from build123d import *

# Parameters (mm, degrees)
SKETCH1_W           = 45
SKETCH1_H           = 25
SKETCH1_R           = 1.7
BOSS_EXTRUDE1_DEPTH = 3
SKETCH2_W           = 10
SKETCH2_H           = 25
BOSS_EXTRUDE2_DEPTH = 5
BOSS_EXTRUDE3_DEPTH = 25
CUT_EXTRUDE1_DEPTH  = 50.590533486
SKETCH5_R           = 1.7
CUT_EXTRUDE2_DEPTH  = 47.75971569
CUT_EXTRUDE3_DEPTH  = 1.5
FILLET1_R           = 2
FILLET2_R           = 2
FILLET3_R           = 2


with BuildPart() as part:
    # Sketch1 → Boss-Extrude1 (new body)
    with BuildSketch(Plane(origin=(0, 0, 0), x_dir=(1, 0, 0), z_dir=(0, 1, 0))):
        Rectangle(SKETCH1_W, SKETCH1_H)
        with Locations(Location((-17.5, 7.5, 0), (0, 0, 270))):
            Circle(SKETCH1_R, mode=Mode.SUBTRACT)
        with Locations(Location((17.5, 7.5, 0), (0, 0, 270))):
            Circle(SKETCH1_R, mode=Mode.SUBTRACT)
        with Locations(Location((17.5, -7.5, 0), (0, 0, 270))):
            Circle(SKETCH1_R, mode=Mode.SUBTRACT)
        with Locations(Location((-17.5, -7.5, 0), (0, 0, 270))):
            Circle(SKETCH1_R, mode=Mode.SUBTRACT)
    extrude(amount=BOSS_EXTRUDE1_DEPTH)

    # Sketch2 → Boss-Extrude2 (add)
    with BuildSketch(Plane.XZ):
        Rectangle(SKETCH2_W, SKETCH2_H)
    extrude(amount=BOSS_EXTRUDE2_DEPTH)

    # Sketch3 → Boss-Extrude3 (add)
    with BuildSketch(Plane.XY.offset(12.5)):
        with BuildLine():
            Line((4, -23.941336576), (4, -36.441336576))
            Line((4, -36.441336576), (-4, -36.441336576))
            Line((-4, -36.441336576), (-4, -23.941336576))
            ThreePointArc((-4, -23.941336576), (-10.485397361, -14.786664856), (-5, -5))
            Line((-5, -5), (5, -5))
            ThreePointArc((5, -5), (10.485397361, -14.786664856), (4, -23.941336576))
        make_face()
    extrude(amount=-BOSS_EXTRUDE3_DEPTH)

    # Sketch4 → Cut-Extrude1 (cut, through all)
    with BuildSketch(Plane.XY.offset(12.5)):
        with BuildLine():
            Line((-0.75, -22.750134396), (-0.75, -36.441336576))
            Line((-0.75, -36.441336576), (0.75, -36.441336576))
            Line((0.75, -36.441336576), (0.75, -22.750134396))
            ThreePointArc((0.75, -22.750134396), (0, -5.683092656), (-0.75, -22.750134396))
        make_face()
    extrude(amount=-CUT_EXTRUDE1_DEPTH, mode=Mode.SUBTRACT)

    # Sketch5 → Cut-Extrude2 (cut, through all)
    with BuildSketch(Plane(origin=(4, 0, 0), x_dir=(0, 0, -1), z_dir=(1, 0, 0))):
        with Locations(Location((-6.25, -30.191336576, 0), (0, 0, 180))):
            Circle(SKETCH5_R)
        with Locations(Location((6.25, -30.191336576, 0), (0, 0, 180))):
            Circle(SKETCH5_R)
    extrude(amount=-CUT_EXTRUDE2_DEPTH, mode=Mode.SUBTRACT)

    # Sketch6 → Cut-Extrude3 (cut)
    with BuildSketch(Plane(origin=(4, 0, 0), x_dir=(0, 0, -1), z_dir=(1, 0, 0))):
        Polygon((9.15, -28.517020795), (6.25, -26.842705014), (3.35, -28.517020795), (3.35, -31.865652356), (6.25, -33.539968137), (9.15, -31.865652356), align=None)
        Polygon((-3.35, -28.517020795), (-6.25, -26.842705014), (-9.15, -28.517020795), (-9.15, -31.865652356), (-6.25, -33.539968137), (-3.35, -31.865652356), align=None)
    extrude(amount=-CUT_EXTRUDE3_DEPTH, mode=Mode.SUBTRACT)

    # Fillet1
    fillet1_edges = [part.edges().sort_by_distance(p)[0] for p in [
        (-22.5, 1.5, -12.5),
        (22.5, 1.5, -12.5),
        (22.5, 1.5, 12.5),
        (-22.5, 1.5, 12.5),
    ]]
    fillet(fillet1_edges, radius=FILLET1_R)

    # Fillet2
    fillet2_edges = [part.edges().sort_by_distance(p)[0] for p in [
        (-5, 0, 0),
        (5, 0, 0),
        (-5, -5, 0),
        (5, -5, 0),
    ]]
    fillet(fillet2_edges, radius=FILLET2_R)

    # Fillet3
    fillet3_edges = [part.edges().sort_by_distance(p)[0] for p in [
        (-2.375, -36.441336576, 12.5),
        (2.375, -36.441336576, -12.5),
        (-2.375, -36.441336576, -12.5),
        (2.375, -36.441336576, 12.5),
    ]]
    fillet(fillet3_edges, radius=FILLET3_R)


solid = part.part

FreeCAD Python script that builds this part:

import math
import FreeCAD as App
import Part
import Sketcher
Q = App.Units.Quantity


def edges_at(feature, points):
    """Names of the edges that pass closest to the given points."""
    edges = feature.Shape.Edges
    near = lambda p: min(range(len(edges)), key=lambda i: edges[i].distToShape(Part.Vertex(*p))[0])
    return sorted({f"Edge{near(p) + 1}" for p in points})


def add_polygon(sketch, points):
    """Adds a closed chain of lines whose ends are joined by coincident constraints."""
    first, n = sketch.GeometryCount, len(points)
    for a, b in zip(points, points[1:] + points[:1]):
        sketch.addGeometry(Part.LineSegment(App.Vector(*a, 0), App.Vector(*b, 0)), False)
    for i in range(n):
        sketch.addConstraint(Sketcher.Constraint("Coincident", first + i, 2, first + (i + 1) % n, 1))

doc = App.newDocument("Part")
body = doc.addObject("PartDesign::Body", "Body")

# Sketch on XZ plane
sketch1 = body.newObject("Sketcher::SketchObject", "Sketch")
sketch1.AttachmentSupport = (doc.getObject("XZ_Plane"), [""])
sketch1.MapMode = "FlatFace"
add_polygon(sketch1, [(-22.5, -12.5), (-22.5, 12.5), (22.5, 12.5), (22.5, -12.5)])  # lines 0-3
sketch1.addGeometry(Part.Circle(App.Vector(-17.5, 7.5, 0), App.Vector(0, 0, 1), 1.7), False)  # 4
sketch1.addGeometry(Part.Circle(App.Vector(17.5, 7.5, 0), App.Vector(0, 0, 1), 1.7), False)  # 5
sketch1.addGeometry(Part.Circle(App.Vector(-17.5, -7.5, 0), App.Vector(0, 0, 1), 1.7), False)  # 6
sketch1.addGeometry(Part.Circle(App.Vector(17.5, -7.5, 0), App.Vector(0, 0, 1), 1.7), False)  # 7
sketch1.addConstraint(Sketcher.Constraint("Vertical", 0))
sketch1.addConstraint(Sketcher.Constraint("Horizontal", 1))
sketch1.addConstraint(Sketcher.Constraint("Vertical", 2))
sketch1.addConstraint(Sketcher.Constraint("Horizontal", 3))
sketch1.addConstraint(Sketcher.Constraint("Equal", 4, 5))
sketch1.addConstraint(Sketcher.Constraint("Equal", 5, 6))
sketch1.addConstraint(Sketcher.Constraint("Equal", 6, 7))
sketch1.addConstraint(Sketcher.Constraint("Symmetric", 5, 3, 6, 3, -1, 1))
sketch1.addConstraint(Sketcher.Constraint("Symmetric", 4, 3, 7, 3, -1, 1))
sketch1.addConstraint(Sketcher.Constraint("Symmetric", 0, 2, 2, 2, -1, 1))
sketch1.addConstraint(Sketcher.Constraint("Symmetric", 4, 3, 5, 3, -2))
sketch1.addConstraint(Sketcher.Constraint("Diameter", 4, Q("3.4 mm")))
sketch1.addConstraint(Sketcher.Constraint("DistanceX", 1, 1, 1, 2, Q("45 mm")))
sketch1.addConstraint(Sketcher.Constraint("DistanceY", 0, 1, 0, 2, Q("25 mm")))
sketch1.addConstraint(Sketcher.Constraint("DistanceX", 4, 3, 5, 3, Q("35 mm")))
sketch1.addConstraint(Sketcher.Constraint("DistanceY", 6, 3, 4, 3, Q("15 mm")))
pad1 = body.newObject("PartDesign::Pad", "Pad")
pad1.Profile = sketch1
pad1.Length = 3
pad1.Reversed = True

# Sketch on XZ plane
sketch2 = body.newObject("Sketcher::SketchObject", "Sketch001")
sketch2.AttachmentSupport = (doc.getObject("XZ_Plane"), [""])
sketch2.MapMode = "FlatFace"
add_polygon(sketch2, [(-5, 12), (-5, -12), (5, -12), (5, 12)])  # lines 0-3
sketch2.addConstraint(Sketcher.Constraint("Vertical", 0))
sketch2.addConstraint(Sketcher.Constraint("Horizontal", 1))
sketch2.addConstraint(Sketcher.Constraint("Vertical", 2))
sketch2.addConstraint(Sketcher.Constraint("Horizontal", 3))
sketch2.addConstraint(Sketcher.Constraint("Symmetric", 0, 2, 2, 2, -1, 1))
sketch2.addConstraint(Sketcher.Constraint("DistanceX", 1, 1, 1, 2, Q("10 mm")))
sketch2.addConstraint(Sketcher.Constraint("DistanceY", 0, 2, 0, 1, Q("25 mm")))
pad2 = body.newObject("PartDesign::Pad", "Pad001")
pad2.Profile = sketch2
pad2.Length = 5

# Sketch on XY plane
sketch3 = body.newObject("Sketcher::SketchObject", "Sketch002")
sketch3.AttachmentSupport = (doc.getObject("XY_Plane"), [""])
sketch3.MapMode = "FlatFace"
sketch3.AttachmentOffset = App.Placement(App.Vector(0, 0, 12.5), App.Rotation())
sketch3.addGeometry(Part.LineSegment(App.Vector(4, -36, 0), App.Vector(4, -24, 0)), False)
sketch3.addGeometry(Part.ArcOfCircle(Part.Circle(App.Vector(0, -14, 0), App.Vector(0, 0, 1), 10), math.radians(-68), math.radians(62)), False)
sketch3.addGeometry(Part.LineSegment(App.Vector(5, -5, 0), App.Vector(-5, -5, 0)), False)
sketch3.addGeometry(Part.ArcOfCircle(Part.Circle(App.Vector(0, -14, 0), App.Vector(0, 0, 1), 10), math.radians(118), math.radians(248)), False)
sketch3.addGeometry(Part.LineSegment(App.Vector(-4, -24, 0), App.Vector(-4, -36, 0)), False)
sketch3.addGeometry(Part.LineSegment(App.Vector(-4, -36, 0), App.Vector(4, -36, 0)), False)
sketch3.addConstraint(Sketcher.Constraint("Coincident", 0, 2, 1, 1))
sketch3.addConstraint(Sketcher.Constraint("Coincident", 1, 2, 2, 1))
sketch3.addConstraint(Sketcher.Constraint("Coincident", 2, 2, 3, 1))
sketch3.addConstraint(Sketcher.Constraint("Coincident", 3, 2, 4, 1))
sketch3.addConstraint(Sketcher.Constraint("Coincident", 4, 2, 5, 1))
sketch3.addConstraint(Sketcher.Constraint("Coincident", 5, 2, 0, 1))
sketch3.addConstraint(Sketcher.Constraint("Vertical", 0))
sketch3.addConstraint(Sketcher.Constraint("Horizontal", 2))
sketch3.addConstraint(Sketcher.Constraint("Vertical", 4))
sketch3.addConstraint(Sketcher.Constraint("Horizontal", 5))
sketch3.addConstraint(Sketcher.Constraint("Coincident", 3, 3, 1, 3))
sketch3.addConstraint(Sketcher.Constraint("Equal", 1, 3))
sketch3.addConstraint(Sketcher.Constraint("Symmetric", 0, 2, 3, 2, -2))
sketch3.addConstraint(Sketcher.Constraint("Radius", 1, Q("10.5 mm")))
sketch3.addConstraint(Sketcher.Constraint("DistanceX", 2, 2, 2, 1, Q("10 mm")))
sketch3.addConstraint(Sketcher.Constraint("DistanceX", 5, 1, 5, 2, Q("8 mm")))
sketch3.addConstraint(Sketcher.Constraint("DistanceY", 0, 1, 0, 2, Q("12.5 mm")))
sketch3.addConstraint(Sketcher.Constraint("DistanceY", 1, 2, -1, 1, Q("5 mm")))
pad3 = body.newObject("PartDesign::Pad", "Pad002")
pad3.Profile = sketch3
pad3.Length = 25
pad3.Reversed = True

# Sketch on XY plane
sketch4 = body.newObject("Sketcher::SketchObject", "Sketch003")
sketch4.AttachmentSupport = (doc.getObject("XY_Plane"), [""])
sketch4.MapMode = "FlatFace"
sketch4.AttachmentOffset = App.Placement(App.Vector(0, 0, 12.5), App.Rotation())
sketch4.addGeometry(Part.LineSegment(App.Vector(-0.8, -22.8, 0), App.Vector(-0.8, -36.4, 0)), False)
sketch4.addGeometry(Part.LineSegment(App.Vector(-0.8, -36.4, 0), App.Vector(0.8, -36.4, 0)), False)
sketch4.addGeometry(Part.LineSegment(App.Vector(0.8, -36.4, 0), App.Vector(0.8, -22.8, 0)), False)
sketch4.addGeometry(Part.ArcOfCircle(Part.Circle(App.Vector(0, -14.2, 0), App.Vector(0, 0, 1), 8.6), math.radians(-85), math.radians(265)), False)
sketch4.addConstraint(Sketcher.Constraint("Coincident", 0, 2, 1, 1))
sketch4.addConstraint(Sketcher.Constraint("Coincident", 1, 2, 2, 1))
sketch4.addConstraint(Sketcher.Constraint("Coincident", 2, 2, 3, 1))
sketch4.addConstraint(Sketcher.Constraint("Coincident", 3, 2, 0, 1))
sketch4.addConstraint(Sketcher.Constraint("Vertical", 0))
sketch4.addConstraint(Sketcher.Constraint("Horizontal", 1))
sketch4.addConstraint(Sketcher.Constraint("Vertical", 2))
sketch4.addConstraint(Sketcher.Constraint("Symmetric", 2, 2, 3, 2, -2))
sketch4.addConstraint(Sketcher.Constraint("Radius", 3, Q("8.55 mm")))
sketch4.addConstraint(Sketcher.Constraint("DistanceX", 1, 1, 1, 2, Q("1.5 mm")))
sketch4.addConstraint(Sketcher.Constraint("DistanceY", 0, 2, 0, 1, Q("13.691202 mm")))
sketch4.addConstraint(Sketcher.Constraint("DistanceY", 3, 3, -1, 1, Q("14.233093 mm")))
pocket1 = body.newObject("PartDesign::Pocket", "Pocket")
pocket1.Profile = sketch4
pocket1.Type = "ThroughAll"

# Sketch on YZ plane
sketch5 = body.newObject("Sketcher::SketchObject", "Sketch004")
sketch5.AttachmentSupport = (doc.getObject("YZ_Plane"), [""])
sketch5.MapMode = "FlatFace"
sketch5.AttachmentOffset = App.Placement(App.Vector(0, 0, 4), App.Rotation())
sketch5.addGeometry(Part.Circle(App.Vector(-30.2, 6.2, 0), App.Vector(0, 0, 1), 1.7), False)
sketch5.addGeometry(Part.Circle(App.Vector(-30.2, -6.2, 0), App.Vector(0, 0, 1), 1.7), False)
sketch5.addConstraint(Sketcher.Constraint("Equal", 0, 1))
sketch5.addConstraint(Sketcher.Constraint("Symmetric", 0, 3, 1, 3, -1))
sketch5.addConstraint(Sketcher.Constraint("Diameter", 0, Q("3.4 mm")))
sketch5.addConstraint(Sketcher.Constraint("DistanceY", 1, 3, 0, 3, Q("12.5 mm")))
sketch5.addConstraint(Sketcher.Constraint("DistanceX", 0, 3, -1, 1, Q("30.191337 mm")))
pocket2 = body.newObject("PartDesign::Pocket", "Pocket001")
pocket2.Profile = sketch5
pocket2.Type = "ThroughAll"

# Sketch on YZ plane
sketch6 = body.newObject("Sketcher::SketchObject", "Sketch005")
sketch6.AttachmentSupport = (doc.getObject("YZ_Plane"), [""])
sketch6.MapMode = "FlatFace"
sketch6.AttachmentOffset = App.Placement(App.Vector(0, 0, 4), App.Rotation())
add_polygon(sketch6, [(-28.5, -9.2), (-26.8, -6.2), (-28.5, -3.4), (-31.9, -3.4), (-33.5, -6.2), (-31.9, -9.2)])  # lines 0-5
add_polygon(sketch6, [(-28.5, 3.4), (-26.8, 6.2), (-28.5, 9.2), (-31.9, 9.2), (-33.5, 6.2), (-31.9, 3.4)])  # lines 6-11
sketch6.addConstraint(Sketcher.Constraint("Horizontal", 2))
sketch6.addConstraint(Sketcher.Constraint("Horizontal", 5))
sketch6.addConstraint(Sketcher.Constraint("Horizontal", 8))
sketch6.addConstraint(Sketcher.Constraint("Horizontal", 11))
sketch6.addConstraint(Sketcher.Constraint("Symmetric", 0, 2, 6, 2, -1))
sketch6.addConstraint(Sketcher.Constraint("Symmetric", 5, 2, 7, 2, -1))
sketch6.addConstraint(Sketcher.Constraint("Symmetric", 3, 2, 9, 2, -1))
sketch6.addConstraint(Sketcher.Constraint("Symmetric", 2, 2, 10, 2, -1))
sketch6.addConstraint(Sketcher.Constraint("Parallel", 0, 3))
sketch6.addConstraint(Sketcher.Constraint("Parallel", 1, 4))
sketch6.addConstraint(Sketcher.Constraint("Parallel", 3, 6))
sketch6.addConstraint(Sketcher.Constraint("Parallel", 4, 7))
sketch6.addConstraint(Sketcher.Constraint("Parallel", 6, 9))
sketch6.addConstraint(Sketcher.Constraint("Horizontal", 0, 2, 3, 2))
sketch6.addConstraint(Sketcher.Constraint("Vertical", 2, 2, 4, 2))
sketch6.addConstraint(Sketcher.Constraint("Angle", 0, Q("60 deg")))
sketch6.addConstraint(Sketcher.Constraint("DistanceY", 0, 2, 1, 2, Q("2.9 mm")))
sketch6.addConstraint(Sketcher.Constraint("DistanceY", 1, 2, 6, 2, Q("9.6 mm")))
sketch6.addConstraint(Sketcher.Constraint("DistanceX", 2, 2, 2, 1, Q("3.348632 mm")))
sketch6.addConstraint(Sketcher.Constraint("DistanceX", 1, 2, -1, 1, Q("28.517021 mm")))
pocket3 = body.newObject("PartDesign::Pocket", "Pocket002")
pocket3.Profile = sketch6
pocket3.Length = 1.5
doc.recompute()

fillet = body.newObject("PartDesign::Fillet", "Fillet")
fillet.Base = (pocket3, edges_at(pocket3, [
    (-22.5, 1.5, -12.5),
    (22.5, 1.5, -12.5),
    (22.5, 1.5, 12.5),
    (-22.5, 1.5, 12.5),
]))
fillet.Radius = 2
doc.recompute()

fillet2 = body.newObject("PartDesign::Fillet", "Fillet001")
fillet2.Base = (fillet, edges_at(fillet, [
    (-5, 0, 0),
    (5, 0, 0),
    (-5, -5, 0),
    (5, -5, 0),
]))
fillet2.Radius = 2
doc.recompute()

fillet3 = body.newObject("PartDesign::Fillet", "Fillet002")
fillet3.Base = (fillet2, edges_at(fillet2, [
    (-2.375, -36.441, 12.5),
    (2.375, -36.441, -12.5),
    (-2.375, -36.441, -12.5),
    (2.375, -36.441, 12.5),
]))
fillet3.Radius = 2

doc.recompute()
